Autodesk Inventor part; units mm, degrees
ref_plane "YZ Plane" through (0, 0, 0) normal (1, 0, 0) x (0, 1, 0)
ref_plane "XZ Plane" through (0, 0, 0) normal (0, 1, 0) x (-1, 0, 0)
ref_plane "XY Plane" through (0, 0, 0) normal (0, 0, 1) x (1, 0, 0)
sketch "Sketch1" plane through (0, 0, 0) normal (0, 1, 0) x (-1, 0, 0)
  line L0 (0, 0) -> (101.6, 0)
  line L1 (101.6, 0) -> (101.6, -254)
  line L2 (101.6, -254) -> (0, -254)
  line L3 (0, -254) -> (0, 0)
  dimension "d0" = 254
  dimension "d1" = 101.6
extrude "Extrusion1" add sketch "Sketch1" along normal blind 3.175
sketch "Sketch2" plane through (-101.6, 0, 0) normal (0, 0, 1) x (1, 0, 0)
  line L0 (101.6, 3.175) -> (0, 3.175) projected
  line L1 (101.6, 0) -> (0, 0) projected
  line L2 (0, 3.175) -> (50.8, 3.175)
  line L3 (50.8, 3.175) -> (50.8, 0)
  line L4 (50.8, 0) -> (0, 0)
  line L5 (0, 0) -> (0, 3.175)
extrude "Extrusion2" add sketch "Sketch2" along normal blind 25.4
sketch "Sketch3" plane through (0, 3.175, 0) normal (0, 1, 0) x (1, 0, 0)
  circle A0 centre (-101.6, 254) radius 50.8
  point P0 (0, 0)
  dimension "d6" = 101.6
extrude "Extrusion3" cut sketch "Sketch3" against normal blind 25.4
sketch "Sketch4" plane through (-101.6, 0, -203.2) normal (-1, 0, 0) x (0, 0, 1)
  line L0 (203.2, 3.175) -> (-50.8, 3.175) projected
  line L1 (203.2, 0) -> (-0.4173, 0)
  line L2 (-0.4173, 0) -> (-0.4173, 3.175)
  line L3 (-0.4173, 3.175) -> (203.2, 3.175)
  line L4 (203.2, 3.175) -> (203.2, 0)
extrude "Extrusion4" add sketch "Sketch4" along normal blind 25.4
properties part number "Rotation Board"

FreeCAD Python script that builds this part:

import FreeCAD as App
import Part
import Sketcher
Q = App.Units.Quantity

doc = App.newDocument("Part")
body = doc.addObject("PartDesign::Body", "Body")

sketch1 = doc.addObject("Sketcher::SketchObject", "Sketch")
body.addObject(sketch1)
sketch1.AttachmentSupport = (doc.XZ_Plane, [""])
sketch1.MapMode = "FlatFace"
sketch1.addGeometry([
    Part.LineSegment(App.Vector(-102, 0, 0), App.Vector(0, 0, 0)),
    Part.LineSegment(App.Vector(0, 0, 0), App.Vector(0, -254, 0)),
    Part.LineSegment(App.Vector(0, -254, 0), App.Vector(-102, -254, 0)),
    Part.LineSegment(App.Vector(-102, -254, 0), App.Vector(-102, 0, 0)),
], False)
sketch1.addConstraint([
    Sketcher.Constraint("Coincident", 0, 2, 1, 1),
    Sketcher.Constraint("Coincident", 1, 2, 2, 1),
    Sketcher.Constraint("Coincident", 2, 2, 3, 1),
    Sketcher.Constraint("Coincident", 3, 2, 0, 1),
    Sketcher.Constraint("Horizontal", 0),
    Sketcher.Constraint("Vertical", 1),
    Sketcher.Constraint("Horizontal", 2),
    Sketcher.Constraint("Vertical", 3),
    Sketcher.Constraint("Coincident", 0, 2, -1, 1),
    Sketcher.Constraint("DistanceX", 0, 1, 0, 2, Q("4 in")),
    Sketcher.Constraint("DistanceY", 1, 2, 1, 1, Q("10 in")),
])
pad1 = doc.addObject("PartDesign::Pad", "Pad")
body.addObject(pad1)
pad1.Profile = sketch1
pad1.Length = Q("0.125 in")
pad1.Reversed = True

sketch2 = doc.addObject("Sketcher::SketchObject", "Sketch001")
body.addObject(sketch2)
sketch2.AttachmentSupport = (doc.XY_Plane, [""])
sketch2.MapMode = "FlatFace"
sketch2.addGeometry([
    Part.LineSegment(App.Vector(-50.8, 0, 0), App.Vector(-50.8, 3.2, 0)),
    Part.LineSegment(App.Vector(-50.8, 3.2, 0), App.Vector(-101.6, 3.2, 0)),
    Part.LineSegment(App.Vector(-101.6, 3.2, 0), App.Vector(-101.6, 0, 0)),
    Part.LineSegment(App.Vector(-101.6, 0, 0), App.Vector(-50.8, 0, 0)),
], False)
sketch2.addConstraint([
    Sketcher.Constraint("Coincident", 0, 2, 1, 1),
    Sketcher.Constraint("Coincident", 1, 2, 2, 1),
    Sketcher.Constraint("Coincident", 2, 2, 3, 1),
    Sketcher.Constraint("Coincident", 3, 2, 0, 1),
    Sketcher.Constraint("Vertical", 0),
    Sketcher.Constraint("Horizontal", 1),
    Sketcher.Constraint("Vertical", 2),
    Sketcher.Constraint("Horizontal", 3),
    Sketcher.Constraint("PointOnObject", 2, 2, -1),
    Sketcher.Constraint("DistanceX", 1, 2, 1, 1, Q("2 in")),
    Sketcher.Constraint("DistanceX", 0, 2, -1, 1, Q("2 in")),
    Sketcher.Constraint("DistanceY", 0, 1, 0, 2, Q("0.125 in")),
])
pad2 = doc.addObject("PartDesign::Pad", "Pad001")
body.addObject(pad2)
pad2.Profile = sketch2
pad2.Length = Q("1 in")

sketch3 = doc.addObject("Sketcher::SketchObject", "Sketch002")
body.addObject(sketch3)
sketch3.AttachmentSupport = (doc.XZ_Plane, [""])
sketch3.MapMode = "FlatFace"
sketch3.AttachmentOffset = App.Placement(App.Vector(0, 0, -0.125 * 25.4), App.Rotation())
sketch3.addGeometry(Part.Circle(App.Vector(-102, -254, 0), App.Vector(0, 0, 1), 51), False)
sketch3.addConstraint([
    Sketcher.Constraint("Diameter", 0, Q("4 in")),
    Sketcher.Constraint("DistanceX", 0, 3, -1, 1, Q("4 in")),
    Sketcher.Constraint("DistanceY", 0, 3, -1, 1, Q("10 in")),
])
pocket1 = doc.addObject("PartDesign::Pocket", "Pocket")
body.addObject(pocket1)
pocket1.Profile = sketch3
pocket1.Length = Q("1 in")
pocket1.Reversed = True

sketch4 = doc.addObject("Sketcher::SketchObject", "Sketch003")
body.addObject(sketch4)
sketch4.AttachmentSupport = (doc.YZ_Plane, [""])
sketch4.MapMode = "FlatFace"
sketch4.AttachmentOffset = App.Placement(App.Vector(0, 0, -4 * 25.4), App.Rotation())
sketch4.addGeometry([
    Part.LineSegment(App.Vector(0, 0, 0), App.Vector(3.2, 0, 0)),
    Part.LineSegment(App.Vector(3.2, 0, 0), App.Vector(3.2, -203.6, 0)),
    Part.LineSegment(App.Vector(3.2, -203.6, 0), App.Vector(0, -203.6, 0)),
    Part.LineSegment(App.Vector(0, -203.6, 0), App.Vector(0, 0, 0)),
], False)
sketch4.addConstraint([
    Sketcher.Constraint("Coincident", 0, 2, 1, 1),
    Sketcher.Constraint("Coincident", 1, 2, 2, 1),
    Sketcher.Constraint("Coincident", 2, 2, 3, 1),
    Sketcher.Constraint("Coincident", 3, 2, 0, 1),
    Sketcher.Constraint("Horizontal", 0),
    Sketcher.Constraint("Vertical", 1),
    Sketcher.Constraint("Horizontal", 2),
    Sketcher.Constraint("Vertical", 3),
    Sketcher.Constraint("Coincident", 3, 2, -1, 1),
    Sketcher.Constraint("DistanceX", 0, 1, 0, 2, Q("0.125 in")),
    Sketcher.Constraint("DistanceY", 1, 2, 1, 1, 203.6173),
])
pad3 = doc.addObject("PartDesign::Pad", "Pad002")
body.addObject(pad3)
pad3.Profile = sketch4
pad3.Length = Q("1 in")
pad3.Reversed = True

doc.recompute()
